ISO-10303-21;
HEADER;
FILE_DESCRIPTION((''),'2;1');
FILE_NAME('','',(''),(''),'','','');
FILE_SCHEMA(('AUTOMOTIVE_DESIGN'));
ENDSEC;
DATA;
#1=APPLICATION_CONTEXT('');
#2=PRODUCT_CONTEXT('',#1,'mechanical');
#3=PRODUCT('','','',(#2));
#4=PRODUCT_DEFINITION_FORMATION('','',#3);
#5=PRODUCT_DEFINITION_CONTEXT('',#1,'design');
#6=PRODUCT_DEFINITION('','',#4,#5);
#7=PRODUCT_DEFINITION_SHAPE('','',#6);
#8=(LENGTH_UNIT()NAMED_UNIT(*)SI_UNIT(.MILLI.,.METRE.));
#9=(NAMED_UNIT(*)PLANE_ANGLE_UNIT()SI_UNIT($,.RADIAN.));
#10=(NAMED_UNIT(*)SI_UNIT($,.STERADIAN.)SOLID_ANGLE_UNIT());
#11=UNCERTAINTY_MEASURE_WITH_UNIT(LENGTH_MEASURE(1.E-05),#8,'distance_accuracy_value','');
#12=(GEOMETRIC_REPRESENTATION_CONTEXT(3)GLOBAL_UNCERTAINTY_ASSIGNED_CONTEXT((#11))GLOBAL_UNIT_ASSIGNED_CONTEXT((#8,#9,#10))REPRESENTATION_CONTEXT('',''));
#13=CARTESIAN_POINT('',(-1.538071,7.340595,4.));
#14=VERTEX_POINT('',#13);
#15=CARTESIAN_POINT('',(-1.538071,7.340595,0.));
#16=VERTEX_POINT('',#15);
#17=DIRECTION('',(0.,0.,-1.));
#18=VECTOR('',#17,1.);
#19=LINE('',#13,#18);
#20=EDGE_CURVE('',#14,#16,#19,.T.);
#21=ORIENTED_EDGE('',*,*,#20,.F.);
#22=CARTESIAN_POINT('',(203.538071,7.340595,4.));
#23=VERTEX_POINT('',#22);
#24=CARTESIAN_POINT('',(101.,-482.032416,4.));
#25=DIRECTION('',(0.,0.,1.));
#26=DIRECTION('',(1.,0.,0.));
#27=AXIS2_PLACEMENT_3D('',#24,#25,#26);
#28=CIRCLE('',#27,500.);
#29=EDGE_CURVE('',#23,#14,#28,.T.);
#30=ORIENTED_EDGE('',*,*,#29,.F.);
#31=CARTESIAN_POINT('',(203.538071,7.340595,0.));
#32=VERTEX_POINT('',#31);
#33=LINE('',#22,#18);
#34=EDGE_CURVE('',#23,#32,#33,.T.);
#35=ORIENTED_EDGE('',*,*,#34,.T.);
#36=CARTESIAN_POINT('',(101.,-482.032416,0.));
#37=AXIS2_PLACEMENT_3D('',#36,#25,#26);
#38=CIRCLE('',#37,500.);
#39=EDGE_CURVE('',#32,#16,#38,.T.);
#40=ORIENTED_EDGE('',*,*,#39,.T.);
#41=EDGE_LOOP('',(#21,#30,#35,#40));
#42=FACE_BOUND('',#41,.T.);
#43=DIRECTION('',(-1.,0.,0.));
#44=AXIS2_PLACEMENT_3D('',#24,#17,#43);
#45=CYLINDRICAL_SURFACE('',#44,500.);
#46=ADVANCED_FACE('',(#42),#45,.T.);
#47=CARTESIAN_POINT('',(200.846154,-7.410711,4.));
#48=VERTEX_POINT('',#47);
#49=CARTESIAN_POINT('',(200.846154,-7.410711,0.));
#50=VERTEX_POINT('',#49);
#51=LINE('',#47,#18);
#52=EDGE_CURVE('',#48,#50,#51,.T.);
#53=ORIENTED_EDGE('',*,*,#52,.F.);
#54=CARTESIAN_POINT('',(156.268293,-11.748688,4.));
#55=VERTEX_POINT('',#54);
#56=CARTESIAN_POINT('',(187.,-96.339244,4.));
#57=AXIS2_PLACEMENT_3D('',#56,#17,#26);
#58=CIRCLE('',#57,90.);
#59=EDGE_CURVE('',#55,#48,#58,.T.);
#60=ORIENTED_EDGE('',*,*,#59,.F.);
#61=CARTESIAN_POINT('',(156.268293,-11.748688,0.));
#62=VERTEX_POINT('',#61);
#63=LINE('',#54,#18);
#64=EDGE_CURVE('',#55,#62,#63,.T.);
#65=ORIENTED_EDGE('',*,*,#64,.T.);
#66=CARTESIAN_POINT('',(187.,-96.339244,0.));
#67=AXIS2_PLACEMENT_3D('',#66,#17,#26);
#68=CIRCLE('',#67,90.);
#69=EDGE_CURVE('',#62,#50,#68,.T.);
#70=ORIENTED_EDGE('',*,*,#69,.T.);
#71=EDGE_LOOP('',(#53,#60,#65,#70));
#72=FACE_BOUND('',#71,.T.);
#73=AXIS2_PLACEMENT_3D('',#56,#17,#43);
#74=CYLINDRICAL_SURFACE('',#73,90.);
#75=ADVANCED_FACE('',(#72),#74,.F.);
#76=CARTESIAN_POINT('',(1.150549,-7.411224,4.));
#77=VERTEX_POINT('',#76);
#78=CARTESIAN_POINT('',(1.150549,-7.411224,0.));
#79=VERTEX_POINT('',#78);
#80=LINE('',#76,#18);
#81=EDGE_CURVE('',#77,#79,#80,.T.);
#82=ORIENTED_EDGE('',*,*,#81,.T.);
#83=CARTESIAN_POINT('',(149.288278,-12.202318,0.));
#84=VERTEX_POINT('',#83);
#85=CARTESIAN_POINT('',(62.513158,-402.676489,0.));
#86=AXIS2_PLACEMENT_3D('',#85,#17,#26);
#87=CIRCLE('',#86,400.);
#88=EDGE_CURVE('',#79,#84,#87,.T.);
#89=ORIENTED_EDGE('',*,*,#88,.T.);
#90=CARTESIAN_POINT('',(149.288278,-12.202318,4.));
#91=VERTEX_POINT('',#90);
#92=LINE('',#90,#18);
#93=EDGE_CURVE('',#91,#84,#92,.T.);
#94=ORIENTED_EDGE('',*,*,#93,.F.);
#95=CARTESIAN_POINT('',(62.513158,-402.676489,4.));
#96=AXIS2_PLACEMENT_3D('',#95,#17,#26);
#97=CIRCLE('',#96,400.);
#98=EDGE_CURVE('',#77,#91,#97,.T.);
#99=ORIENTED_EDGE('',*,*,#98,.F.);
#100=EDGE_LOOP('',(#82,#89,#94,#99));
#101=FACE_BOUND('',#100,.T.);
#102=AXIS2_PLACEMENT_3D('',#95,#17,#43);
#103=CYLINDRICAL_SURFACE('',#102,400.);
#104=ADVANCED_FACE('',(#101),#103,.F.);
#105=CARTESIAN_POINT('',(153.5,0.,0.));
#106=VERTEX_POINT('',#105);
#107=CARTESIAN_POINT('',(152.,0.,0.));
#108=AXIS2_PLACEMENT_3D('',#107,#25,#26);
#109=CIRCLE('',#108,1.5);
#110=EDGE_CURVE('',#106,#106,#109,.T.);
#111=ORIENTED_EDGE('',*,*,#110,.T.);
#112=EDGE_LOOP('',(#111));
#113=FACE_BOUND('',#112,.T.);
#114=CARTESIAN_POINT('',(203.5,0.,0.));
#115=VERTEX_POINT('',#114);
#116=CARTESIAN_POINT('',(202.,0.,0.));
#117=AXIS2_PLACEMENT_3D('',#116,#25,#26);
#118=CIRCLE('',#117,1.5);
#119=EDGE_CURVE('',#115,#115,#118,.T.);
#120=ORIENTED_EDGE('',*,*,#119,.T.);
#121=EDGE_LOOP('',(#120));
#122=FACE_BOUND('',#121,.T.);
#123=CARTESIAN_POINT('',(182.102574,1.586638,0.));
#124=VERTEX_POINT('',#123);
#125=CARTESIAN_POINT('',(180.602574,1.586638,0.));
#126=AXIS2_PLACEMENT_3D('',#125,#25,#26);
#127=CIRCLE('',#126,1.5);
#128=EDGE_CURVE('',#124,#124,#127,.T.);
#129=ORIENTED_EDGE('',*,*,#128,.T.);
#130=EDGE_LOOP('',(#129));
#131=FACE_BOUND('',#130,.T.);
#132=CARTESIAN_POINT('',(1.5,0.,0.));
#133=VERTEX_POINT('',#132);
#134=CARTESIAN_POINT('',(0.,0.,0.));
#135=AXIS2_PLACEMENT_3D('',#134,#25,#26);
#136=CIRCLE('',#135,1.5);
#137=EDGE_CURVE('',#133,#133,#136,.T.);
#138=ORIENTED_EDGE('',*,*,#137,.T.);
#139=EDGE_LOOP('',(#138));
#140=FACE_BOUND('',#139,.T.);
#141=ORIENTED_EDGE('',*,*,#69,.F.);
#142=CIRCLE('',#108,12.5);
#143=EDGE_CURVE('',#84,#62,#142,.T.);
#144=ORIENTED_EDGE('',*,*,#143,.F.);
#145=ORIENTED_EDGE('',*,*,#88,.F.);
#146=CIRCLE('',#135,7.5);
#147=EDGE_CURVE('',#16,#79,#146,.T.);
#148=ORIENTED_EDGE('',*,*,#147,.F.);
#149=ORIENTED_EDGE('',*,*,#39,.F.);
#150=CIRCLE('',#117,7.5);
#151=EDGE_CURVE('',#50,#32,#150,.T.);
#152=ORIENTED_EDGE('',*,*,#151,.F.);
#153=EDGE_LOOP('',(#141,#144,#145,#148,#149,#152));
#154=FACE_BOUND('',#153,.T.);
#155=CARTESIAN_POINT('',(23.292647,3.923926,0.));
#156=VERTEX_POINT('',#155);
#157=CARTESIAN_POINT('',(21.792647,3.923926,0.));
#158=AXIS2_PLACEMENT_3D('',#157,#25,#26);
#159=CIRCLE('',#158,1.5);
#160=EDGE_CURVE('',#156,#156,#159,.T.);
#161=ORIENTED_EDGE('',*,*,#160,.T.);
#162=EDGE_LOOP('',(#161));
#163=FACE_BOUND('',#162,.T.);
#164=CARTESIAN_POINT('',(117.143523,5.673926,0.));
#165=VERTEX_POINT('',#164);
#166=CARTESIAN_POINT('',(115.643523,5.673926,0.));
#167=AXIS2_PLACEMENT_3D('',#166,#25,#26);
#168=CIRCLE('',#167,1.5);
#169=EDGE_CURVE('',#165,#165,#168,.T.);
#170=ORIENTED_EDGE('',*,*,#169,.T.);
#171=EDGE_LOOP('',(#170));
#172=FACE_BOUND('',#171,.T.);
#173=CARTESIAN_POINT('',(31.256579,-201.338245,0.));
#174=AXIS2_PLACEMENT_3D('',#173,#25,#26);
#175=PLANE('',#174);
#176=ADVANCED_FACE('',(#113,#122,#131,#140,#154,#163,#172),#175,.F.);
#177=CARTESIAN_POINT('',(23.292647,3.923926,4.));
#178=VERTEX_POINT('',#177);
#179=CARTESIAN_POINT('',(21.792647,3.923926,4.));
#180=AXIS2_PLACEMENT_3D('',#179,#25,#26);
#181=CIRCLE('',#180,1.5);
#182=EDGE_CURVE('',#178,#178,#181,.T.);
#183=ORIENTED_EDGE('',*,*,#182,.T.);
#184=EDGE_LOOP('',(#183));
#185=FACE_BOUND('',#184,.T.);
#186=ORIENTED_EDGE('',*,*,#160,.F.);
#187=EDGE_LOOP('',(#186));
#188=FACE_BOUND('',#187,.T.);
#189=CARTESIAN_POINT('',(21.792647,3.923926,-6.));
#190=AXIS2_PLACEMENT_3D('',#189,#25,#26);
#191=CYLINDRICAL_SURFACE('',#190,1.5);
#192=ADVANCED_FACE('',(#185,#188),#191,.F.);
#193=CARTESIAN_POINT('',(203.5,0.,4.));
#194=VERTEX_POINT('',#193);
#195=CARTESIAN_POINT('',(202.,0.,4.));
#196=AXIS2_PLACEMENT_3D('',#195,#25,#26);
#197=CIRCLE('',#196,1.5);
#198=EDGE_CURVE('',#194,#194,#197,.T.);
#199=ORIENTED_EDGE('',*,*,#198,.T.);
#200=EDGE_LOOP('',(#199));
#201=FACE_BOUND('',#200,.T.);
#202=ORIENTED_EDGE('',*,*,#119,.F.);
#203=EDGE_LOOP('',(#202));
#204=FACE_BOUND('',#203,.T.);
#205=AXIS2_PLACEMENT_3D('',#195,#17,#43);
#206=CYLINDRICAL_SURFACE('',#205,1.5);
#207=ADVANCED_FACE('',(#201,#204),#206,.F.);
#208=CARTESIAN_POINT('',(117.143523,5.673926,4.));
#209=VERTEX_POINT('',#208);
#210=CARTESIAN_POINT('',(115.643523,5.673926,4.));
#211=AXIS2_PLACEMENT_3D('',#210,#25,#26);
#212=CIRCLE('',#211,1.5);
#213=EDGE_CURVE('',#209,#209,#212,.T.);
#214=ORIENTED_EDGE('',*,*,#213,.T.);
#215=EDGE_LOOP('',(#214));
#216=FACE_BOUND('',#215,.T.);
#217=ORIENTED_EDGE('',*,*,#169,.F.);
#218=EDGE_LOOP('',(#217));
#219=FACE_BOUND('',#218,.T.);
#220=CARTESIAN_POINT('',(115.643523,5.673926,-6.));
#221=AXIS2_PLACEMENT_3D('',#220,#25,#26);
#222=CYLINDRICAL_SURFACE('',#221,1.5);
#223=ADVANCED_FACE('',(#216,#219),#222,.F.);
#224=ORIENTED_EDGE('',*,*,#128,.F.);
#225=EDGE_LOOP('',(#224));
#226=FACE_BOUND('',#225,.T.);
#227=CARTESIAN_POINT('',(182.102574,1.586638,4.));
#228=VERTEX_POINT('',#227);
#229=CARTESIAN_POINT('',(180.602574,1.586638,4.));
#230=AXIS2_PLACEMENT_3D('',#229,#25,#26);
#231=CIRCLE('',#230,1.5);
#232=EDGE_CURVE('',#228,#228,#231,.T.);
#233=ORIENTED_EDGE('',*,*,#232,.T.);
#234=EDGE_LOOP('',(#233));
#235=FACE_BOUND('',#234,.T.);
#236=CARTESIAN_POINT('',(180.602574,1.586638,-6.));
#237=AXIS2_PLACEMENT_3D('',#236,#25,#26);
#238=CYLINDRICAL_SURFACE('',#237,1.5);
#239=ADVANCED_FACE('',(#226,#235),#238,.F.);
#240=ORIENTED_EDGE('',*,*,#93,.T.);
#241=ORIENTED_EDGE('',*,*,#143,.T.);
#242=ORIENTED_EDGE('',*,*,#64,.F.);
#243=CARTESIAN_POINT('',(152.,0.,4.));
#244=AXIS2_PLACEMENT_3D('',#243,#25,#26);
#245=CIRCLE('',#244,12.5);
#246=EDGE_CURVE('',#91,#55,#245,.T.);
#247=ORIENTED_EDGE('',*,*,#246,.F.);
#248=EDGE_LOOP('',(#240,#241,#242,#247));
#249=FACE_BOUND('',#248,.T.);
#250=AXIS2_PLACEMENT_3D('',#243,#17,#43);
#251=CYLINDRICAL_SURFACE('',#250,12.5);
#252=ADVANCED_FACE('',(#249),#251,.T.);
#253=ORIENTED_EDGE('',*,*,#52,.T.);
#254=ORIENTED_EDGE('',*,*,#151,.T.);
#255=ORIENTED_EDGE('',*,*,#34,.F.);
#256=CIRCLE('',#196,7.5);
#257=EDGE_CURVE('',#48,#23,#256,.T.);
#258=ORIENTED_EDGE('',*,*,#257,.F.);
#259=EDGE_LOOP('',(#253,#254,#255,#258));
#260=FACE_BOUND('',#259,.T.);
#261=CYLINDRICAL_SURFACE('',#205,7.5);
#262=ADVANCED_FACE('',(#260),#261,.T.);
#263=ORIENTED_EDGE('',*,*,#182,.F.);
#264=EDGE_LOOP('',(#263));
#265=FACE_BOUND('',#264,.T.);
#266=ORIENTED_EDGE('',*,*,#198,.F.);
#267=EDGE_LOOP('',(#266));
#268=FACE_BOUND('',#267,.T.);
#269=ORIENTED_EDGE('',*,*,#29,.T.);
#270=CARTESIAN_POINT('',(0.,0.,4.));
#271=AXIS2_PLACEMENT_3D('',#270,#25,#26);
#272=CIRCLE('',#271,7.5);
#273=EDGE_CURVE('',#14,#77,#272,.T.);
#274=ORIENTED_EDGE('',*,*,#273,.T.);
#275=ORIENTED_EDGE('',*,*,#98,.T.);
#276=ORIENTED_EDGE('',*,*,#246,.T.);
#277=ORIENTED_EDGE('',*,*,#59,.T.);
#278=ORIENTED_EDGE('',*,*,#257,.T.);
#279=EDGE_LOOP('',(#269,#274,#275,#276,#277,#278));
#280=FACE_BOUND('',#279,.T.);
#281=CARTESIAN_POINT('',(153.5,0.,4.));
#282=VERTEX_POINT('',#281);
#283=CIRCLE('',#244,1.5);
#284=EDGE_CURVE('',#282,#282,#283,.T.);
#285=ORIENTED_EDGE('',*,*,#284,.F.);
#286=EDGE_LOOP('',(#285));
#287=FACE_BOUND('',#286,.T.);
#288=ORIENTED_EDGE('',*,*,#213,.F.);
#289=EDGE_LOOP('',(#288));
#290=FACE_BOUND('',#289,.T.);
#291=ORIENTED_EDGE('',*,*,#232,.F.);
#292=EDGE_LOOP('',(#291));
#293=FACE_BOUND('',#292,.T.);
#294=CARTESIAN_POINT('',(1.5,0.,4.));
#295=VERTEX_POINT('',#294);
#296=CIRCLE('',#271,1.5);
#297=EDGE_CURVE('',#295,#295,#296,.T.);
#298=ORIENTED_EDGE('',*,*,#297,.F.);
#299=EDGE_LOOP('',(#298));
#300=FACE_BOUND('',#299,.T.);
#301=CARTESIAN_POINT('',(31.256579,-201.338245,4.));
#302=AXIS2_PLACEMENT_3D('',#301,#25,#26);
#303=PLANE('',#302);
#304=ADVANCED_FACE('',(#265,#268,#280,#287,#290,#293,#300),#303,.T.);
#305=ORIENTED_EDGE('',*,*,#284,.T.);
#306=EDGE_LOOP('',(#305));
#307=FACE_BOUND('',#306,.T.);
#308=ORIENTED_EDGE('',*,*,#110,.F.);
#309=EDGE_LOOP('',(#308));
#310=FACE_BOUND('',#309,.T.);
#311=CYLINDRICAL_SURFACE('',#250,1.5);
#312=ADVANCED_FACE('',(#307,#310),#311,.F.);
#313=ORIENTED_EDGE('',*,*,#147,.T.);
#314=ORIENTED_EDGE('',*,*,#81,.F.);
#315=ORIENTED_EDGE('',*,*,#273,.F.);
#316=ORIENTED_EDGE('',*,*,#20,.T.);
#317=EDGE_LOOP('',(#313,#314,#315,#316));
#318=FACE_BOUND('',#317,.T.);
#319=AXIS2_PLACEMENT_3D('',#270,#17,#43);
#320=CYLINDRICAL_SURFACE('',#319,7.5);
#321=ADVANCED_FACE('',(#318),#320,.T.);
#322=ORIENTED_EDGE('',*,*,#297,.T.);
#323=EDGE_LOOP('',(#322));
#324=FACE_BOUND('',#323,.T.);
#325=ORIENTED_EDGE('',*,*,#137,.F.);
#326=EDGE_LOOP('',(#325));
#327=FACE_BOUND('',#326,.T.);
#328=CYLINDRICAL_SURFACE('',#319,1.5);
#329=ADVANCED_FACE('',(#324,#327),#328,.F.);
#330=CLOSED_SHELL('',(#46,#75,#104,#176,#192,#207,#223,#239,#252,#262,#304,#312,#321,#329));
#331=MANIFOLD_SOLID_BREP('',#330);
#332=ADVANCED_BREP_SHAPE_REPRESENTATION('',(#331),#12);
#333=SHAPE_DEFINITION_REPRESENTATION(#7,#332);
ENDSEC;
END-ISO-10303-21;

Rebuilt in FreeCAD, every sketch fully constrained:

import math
import FreeCAD as App
import Part
import Sketcher
from FreeCAD import Vector
Q = App.Units.Quantity

doc = App.newDocument("Part")
body = doc.addObject("PartDesign::Body", "Body")

sketch1 = body.newObject("Sketcher::SketchObject", "Sketch")
sketch1.AttachmentSupport = (doc.getObject("XY_Plane"), [""])
sketch1.MapMode = "FlatFace"
sketch1.addGeometry([
    Part.ArcOfCircle(Part.Circle(Vector(0, 0, 0), Vector(0, 0, 1), 7.5), math.radians(102), math.radians(279)),
    Part.ArcOfCircle(Part.Circle(Vector(62.5, -402.7, 0), Vector(0, 0, 1), 400), math.radians(77), math.radians(99)),
    Part.ArcOfCircle(Part.Circle(Vector(152, 0, 0), Vector(0, 0, 1), 12.5), math.radians(-103), math.radians(-70)),
    Part.ArcOfCircle(Part.Circle(Vector(187, -96.3, 0), Vector(0, 0, 1), 90), math.radians(81), math.radians(110)),
    Part.ArcOfCircle(Part.Circle(Vector(202, 0, 0), Vector(0, 0, 1), 7.5), math.radians(-99), math.radians(78)),
    Part.ArcOfCircle(Part.Circle(Vector(101, -482, 0), Vector(0, 0, 1), 500), math.radians(78), math.radians(102)),
    Part.Circle(Vector(0, 0, 0), Vector(0, 0, 1), 1.5),
    Part.Circle(Vector(152, 0, 0), Vector(0, 0, 1), 1.5),
    Part.Circle(Vector(202, 0, 0), Vector(0, 0, 1), 1.5),
], False)
sketch1.addConstraint([
    Sketcher.Constraint("Tangent", 0, 2, 1, 2),
    Sketcher.Constraint("Tangent", 1, 1, 2, 1),
    Sketcher.Constraint("Tangent", 2, 2, 3, 2),
    Sketcher.Constraint("Tangent", 3, 1, 4, 1),
    Sketcher.Constraint("Tangent", 4, 2, 5, 1),
    Sketcher.Constraint("Tangent", 5, 2, 0, 1),
    Sketcher.Constraint("Coincident", 0, 3, -1, 1),
    Sketcher.Constraint("Coincident", 6, 3, -1, 1),
    Sketcher.Constraint("Coincident", 7, 3, 2, 3),
    Sketcher.Constraint("Coincident", 8, 3, 4, 3),
    Sketcher.Constraint("Equal", 0, 4),
    Sketcher.Constraint("Equal", 6, 7),
    Sketcher.Constraint("Equal", 7, 8),
    Sketcher.Constraint("PointOnObject", 2, 3, -1),
    Sketcher.Constraint("PointOnObject", 4, 3, -1),
    Sketcher.Constraint("Diameter", 6, Q("3 mm")),
    Sketcher.Constraint("Radius", 1, Q("400 mm")),
    Sketcher.Constraint("Radius", 3, Q("90 mm")),
    Sketcher.Constraint("Radius", 5, Q("500 mm")),
    Sketcher.Constraint("Radius", 0, Q("7.5 mm")),
    Sketcher.Constraint("Radius", 2, Q("12.5 mm")),
    Sketcher.Constraint("DistanceX", -1, 1, 2, 3, Q("152 mm")),
    Sketcher.Constraint("DistanceX", -1, 1, 3, 3, Q("187 mm")),
])
pad1 = body.newObject("PartDesign::Pad", "Pad")
pad1.Profile = sketch1
pad1.Length = 4

sketch2 = body.newObject("Sketcher::SketchObject", "Sketch001")
sketch2.AttachmentSupport = (doc.getObject("XY_Plane"), [""])
sketch2.MapMode = "FlatFace"
sketch2.AttachmentOffset = App.Placement(Vector(0, 0, 4), App.Rotation())
sketch2.addGeometry([
    Part.Circle(Vector(21.8, 3.9, 0), Vector(0, 0, 1), 1.5),
    Part.Circle(Vector(115.6, 5.7, 0), Vector(0, 0, 1), 1.5),
    Part.Circle(Vector(180.6, 1.6, 0), Vector(0, 0, 1), 1.5),
], False)
sketch2.addConstraint([
    Sketcher.Constraint("Equal", 0, 1),
    Sketcher.Constraint("Equal", 1, 2),
    Sketcher.Constraint("Diameter", 0, Q("3 mm")),
    Sketcher.Constraint("DistanceY", 0, 3, 1, 3, Q("1.75 mm")),
    Sketcher.Constraint("DistanceY", -1, 1, 2, 3, Q("1.586638 mm")),
    Sketcher.Constraint("DistanceX", 1, 3, 2, 3, Q("64.959051 mm")),
    Sketcher.Constraint("DistanceX", -1, 1, 0, 3, Q("21.792647 mm")),
    Sketcher.Constraint("DistanceY", -1, 1, 0, 3, Q("3.923926 mm")),
    Sketcher.Constraint("DistanceX", -1, 1, 1, 3, Q("115.643523 mm")),
])
pocket1 = body.newObject("PartDesign::Pocket", "Pocket")
pocket1.Profile = sketch2
pocket1.Length = 10

doc.recompute()
